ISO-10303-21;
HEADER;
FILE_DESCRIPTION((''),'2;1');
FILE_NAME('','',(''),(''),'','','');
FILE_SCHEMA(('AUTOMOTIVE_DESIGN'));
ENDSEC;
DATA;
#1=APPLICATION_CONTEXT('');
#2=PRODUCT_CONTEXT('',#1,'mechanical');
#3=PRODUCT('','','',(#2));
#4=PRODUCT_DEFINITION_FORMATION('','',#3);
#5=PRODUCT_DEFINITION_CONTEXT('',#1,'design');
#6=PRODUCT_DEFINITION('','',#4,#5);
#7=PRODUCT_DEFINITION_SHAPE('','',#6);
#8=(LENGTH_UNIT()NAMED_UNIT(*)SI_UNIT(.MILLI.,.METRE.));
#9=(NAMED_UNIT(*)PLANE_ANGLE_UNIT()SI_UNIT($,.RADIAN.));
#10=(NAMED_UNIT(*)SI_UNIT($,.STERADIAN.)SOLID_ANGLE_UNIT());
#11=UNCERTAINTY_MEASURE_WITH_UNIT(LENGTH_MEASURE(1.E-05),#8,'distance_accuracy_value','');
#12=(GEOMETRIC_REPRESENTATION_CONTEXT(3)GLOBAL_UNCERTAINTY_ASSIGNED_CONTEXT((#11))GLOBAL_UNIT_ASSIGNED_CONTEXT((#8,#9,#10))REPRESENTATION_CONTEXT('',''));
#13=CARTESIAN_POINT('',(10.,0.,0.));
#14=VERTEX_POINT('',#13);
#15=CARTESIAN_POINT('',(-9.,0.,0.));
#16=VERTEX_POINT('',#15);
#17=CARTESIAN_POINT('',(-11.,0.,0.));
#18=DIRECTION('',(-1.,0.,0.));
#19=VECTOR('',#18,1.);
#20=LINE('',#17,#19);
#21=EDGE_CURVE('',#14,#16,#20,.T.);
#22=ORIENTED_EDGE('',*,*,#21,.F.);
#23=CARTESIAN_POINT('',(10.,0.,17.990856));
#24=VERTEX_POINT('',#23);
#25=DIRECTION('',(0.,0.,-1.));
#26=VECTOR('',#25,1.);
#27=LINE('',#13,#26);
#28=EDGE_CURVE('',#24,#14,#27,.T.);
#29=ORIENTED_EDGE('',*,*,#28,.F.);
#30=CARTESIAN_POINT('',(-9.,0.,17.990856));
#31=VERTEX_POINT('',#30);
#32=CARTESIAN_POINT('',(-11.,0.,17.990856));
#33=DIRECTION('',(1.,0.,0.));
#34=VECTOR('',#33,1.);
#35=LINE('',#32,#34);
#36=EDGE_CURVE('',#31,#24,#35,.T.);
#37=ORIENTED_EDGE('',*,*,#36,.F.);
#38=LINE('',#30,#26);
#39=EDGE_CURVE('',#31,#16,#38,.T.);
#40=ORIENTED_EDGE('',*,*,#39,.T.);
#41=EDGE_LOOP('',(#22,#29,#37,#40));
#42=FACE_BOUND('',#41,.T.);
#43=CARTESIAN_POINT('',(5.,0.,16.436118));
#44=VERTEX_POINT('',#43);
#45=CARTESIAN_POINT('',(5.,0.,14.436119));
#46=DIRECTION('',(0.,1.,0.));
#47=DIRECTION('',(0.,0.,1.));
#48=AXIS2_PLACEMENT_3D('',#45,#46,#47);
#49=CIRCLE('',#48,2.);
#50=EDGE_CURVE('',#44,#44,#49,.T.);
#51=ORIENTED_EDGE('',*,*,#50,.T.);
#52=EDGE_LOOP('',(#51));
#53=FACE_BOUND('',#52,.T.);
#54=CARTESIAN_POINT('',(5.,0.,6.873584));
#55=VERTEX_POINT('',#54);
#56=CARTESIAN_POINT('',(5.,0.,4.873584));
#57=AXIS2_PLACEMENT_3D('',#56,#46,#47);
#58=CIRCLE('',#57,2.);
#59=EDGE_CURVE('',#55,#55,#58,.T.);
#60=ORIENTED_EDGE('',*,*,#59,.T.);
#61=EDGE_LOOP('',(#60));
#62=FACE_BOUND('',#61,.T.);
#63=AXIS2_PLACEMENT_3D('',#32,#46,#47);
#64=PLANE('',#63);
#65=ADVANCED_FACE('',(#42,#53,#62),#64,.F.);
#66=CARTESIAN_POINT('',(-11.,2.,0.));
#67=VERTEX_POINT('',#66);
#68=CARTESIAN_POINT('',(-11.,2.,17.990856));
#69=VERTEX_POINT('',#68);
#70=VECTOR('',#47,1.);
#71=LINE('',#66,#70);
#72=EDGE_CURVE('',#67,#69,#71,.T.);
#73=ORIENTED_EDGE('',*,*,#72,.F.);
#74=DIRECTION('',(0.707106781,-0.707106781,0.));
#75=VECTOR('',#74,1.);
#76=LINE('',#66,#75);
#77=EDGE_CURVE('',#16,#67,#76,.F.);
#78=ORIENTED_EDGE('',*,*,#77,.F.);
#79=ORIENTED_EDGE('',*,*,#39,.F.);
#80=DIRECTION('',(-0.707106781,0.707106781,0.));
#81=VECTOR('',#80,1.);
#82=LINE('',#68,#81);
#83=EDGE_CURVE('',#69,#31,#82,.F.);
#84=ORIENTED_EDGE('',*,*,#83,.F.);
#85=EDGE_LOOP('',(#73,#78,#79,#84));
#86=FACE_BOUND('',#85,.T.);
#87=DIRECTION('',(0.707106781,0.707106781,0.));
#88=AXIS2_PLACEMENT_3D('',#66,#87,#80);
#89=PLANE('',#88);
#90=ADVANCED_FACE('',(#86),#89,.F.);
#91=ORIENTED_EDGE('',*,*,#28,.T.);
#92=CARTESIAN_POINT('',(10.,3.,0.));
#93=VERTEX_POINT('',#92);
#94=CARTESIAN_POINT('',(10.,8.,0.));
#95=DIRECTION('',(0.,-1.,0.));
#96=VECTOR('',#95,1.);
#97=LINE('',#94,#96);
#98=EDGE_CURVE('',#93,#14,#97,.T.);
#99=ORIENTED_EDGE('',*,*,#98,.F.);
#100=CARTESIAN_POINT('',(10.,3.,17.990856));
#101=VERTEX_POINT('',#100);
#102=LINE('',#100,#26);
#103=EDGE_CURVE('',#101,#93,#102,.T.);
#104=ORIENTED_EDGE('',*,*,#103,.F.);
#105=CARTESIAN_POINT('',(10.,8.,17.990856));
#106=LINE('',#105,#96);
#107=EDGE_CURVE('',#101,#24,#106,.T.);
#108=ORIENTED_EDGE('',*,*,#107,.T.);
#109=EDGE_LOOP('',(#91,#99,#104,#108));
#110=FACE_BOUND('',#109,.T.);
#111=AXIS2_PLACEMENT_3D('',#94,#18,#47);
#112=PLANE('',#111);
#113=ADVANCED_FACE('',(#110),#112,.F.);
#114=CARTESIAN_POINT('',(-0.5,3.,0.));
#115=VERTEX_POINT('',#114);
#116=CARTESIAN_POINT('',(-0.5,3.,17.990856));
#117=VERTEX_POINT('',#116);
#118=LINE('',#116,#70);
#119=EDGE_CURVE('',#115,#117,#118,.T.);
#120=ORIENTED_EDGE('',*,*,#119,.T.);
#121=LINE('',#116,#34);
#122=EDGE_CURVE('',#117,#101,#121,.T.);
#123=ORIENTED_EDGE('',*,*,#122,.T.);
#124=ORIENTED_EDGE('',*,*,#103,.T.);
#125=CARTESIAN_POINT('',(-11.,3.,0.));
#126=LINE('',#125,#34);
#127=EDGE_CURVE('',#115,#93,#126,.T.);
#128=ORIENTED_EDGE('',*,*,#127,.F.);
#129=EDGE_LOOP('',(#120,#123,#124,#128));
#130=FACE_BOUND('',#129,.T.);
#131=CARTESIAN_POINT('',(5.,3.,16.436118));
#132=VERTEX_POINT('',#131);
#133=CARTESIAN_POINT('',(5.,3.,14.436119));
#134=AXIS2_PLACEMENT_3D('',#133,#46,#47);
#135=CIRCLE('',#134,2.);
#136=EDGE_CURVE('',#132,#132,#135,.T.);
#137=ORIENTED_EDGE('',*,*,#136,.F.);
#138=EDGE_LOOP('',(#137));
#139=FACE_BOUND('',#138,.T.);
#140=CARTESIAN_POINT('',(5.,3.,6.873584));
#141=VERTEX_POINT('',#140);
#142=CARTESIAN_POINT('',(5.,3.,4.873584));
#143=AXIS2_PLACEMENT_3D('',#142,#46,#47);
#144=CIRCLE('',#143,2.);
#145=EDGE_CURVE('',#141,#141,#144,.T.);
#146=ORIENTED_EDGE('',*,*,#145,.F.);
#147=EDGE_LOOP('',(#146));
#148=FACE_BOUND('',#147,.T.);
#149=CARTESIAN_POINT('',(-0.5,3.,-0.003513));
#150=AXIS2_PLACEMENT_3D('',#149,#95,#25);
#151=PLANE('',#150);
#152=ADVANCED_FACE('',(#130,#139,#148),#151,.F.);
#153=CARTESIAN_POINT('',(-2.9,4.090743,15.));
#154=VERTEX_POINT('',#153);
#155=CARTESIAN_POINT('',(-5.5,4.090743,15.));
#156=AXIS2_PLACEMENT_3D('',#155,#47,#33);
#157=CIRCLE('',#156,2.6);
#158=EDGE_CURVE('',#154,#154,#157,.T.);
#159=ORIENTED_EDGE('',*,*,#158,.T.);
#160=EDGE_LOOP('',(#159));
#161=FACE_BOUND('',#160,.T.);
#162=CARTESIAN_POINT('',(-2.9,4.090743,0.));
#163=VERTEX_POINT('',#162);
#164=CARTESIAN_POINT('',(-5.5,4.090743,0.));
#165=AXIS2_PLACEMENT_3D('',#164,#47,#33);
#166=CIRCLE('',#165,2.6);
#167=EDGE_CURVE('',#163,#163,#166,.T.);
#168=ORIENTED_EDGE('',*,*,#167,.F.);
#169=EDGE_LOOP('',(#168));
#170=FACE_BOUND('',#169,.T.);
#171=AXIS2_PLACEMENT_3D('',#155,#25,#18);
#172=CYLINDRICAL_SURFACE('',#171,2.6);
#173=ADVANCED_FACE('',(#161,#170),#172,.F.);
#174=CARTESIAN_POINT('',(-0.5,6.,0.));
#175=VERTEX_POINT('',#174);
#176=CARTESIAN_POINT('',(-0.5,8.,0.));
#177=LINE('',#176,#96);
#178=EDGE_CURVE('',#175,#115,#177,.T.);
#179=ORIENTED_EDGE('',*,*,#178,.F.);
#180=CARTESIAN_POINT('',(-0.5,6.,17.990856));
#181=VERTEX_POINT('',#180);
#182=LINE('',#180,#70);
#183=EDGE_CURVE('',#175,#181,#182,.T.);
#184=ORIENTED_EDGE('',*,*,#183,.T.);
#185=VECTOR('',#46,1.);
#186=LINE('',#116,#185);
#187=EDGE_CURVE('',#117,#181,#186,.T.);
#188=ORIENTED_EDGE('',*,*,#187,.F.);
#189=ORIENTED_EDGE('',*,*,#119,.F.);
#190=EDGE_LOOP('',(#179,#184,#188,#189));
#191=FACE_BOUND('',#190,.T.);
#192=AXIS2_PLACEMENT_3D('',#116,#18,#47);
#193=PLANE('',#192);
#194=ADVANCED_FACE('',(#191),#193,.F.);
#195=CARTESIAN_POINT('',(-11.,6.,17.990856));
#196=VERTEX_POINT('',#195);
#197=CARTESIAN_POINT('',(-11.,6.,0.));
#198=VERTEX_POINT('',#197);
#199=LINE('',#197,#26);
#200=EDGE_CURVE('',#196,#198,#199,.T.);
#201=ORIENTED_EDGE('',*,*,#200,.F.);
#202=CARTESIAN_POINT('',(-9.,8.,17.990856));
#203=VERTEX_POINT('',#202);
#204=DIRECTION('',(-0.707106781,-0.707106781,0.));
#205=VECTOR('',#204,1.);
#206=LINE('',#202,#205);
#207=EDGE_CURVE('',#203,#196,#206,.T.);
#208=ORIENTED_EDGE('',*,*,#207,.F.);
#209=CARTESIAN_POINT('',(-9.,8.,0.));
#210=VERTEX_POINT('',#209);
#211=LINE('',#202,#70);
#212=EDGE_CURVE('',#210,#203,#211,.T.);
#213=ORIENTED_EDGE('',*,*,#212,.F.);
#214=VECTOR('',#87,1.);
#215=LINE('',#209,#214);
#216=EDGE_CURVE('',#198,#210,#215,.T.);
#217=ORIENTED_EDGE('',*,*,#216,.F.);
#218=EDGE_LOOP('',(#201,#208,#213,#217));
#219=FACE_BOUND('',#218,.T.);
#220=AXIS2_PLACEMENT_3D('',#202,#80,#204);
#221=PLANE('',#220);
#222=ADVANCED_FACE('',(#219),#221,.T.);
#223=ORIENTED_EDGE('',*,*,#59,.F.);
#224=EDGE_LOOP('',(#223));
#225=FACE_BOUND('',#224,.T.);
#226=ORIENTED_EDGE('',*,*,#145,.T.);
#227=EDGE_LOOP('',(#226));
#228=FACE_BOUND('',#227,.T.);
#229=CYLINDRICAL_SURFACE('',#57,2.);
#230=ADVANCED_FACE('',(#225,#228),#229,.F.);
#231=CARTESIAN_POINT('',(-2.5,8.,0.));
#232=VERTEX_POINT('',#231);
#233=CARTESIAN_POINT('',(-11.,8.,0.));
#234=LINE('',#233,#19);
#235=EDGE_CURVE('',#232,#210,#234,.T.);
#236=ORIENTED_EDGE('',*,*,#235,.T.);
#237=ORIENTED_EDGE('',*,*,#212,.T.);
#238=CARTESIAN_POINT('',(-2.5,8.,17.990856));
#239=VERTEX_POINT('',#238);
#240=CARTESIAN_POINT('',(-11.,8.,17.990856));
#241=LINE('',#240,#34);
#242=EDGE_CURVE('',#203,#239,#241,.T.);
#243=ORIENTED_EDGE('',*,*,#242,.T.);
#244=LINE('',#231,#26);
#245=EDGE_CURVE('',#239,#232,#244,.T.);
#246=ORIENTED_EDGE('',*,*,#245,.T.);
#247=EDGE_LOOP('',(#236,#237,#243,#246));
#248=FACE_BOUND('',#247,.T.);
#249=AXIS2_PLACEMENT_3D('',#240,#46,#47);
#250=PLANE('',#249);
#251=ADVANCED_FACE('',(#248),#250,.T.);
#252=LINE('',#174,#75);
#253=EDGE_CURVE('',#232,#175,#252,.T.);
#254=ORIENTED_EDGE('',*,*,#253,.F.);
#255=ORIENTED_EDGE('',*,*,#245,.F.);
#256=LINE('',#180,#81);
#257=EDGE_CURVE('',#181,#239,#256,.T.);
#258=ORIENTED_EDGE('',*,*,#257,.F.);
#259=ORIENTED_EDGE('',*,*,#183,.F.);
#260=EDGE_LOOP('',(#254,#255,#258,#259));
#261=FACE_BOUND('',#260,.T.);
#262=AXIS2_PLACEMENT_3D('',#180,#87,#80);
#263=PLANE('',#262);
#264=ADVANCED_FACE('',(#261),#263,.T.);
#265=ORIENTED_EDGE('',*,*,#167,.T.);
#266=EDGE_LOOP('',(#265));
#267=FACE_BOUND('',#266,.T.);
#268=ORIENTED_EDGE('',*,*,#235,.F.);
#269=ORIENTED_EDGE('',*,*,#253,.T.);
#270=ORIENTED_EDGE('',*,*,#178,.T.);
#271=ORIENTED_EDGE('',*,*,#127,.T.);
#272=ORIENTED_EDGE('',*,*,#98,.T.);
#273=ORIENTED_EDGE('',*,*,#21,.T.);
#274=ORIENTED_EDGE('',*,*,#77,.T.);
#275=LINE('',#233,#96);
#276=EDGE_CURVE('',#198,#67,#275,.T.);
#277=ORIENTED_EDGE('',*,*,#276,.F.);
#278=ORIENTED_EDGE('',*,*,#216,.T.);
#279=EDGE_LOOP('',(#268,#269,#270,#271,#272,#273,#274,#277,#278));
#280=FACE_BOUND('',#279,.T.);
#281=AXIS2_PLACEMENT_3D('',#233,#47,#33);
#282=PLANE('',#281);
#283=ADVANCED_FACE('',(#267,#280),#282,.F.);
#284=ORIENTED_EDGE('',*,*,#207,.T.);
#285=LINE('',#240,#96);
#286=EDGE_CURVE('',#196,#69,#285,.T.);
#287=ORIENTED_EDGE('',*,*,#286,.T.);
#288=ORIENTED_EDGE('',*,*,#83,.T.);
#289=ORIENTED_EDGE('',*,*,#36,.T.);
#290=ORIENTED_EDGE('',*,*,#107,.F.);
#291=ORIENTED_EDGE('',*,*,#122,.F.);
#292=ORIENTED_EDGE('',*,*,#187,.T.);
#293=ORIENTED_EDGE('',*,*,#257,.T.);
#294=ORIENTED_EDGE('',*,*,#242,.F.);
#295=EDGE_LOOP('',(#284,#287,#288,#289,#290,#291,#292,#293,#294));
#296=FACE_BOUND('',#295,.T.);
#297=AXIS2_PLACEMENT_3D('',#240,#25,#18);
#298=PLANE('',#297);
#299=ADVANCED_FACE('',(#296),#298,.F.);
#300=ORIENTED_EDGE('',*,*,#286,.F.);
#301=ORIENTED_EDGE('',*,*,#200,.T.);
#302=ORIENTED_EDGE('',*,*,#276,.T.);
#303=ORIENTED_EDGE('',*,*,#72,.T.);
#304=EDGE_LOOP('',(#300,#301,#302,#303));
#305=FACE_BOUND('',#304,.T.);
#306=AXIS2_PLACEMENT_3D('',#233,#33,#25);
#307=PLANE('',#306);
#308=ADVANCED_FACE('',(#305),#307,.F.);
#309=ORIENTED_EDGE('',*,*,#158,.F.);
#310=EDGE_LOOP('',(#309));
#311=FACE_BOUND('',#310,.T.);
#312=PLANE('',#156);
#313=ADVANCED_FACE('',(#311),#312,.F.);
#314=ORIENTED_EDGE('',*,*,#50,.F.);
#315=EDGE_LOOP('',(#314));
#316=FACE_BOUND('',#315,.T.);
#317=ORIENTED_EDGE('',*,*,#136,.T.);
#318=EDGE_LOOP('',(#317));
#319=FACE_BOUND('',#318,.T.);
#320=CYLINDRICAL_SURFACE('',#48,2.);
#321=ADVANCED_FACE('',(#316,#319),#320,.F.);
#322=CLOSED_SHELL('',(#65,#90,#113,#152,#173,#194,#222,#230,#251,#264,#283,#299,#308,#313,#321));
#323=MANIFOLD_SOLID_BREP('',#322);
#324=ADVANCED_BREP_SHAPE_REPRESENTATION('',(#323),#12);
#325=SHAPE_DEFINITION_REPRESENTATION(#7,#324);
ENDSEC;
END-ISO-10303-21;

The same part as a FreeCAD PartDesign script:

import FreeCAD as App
import Part
import Sketcher


def edges_at(feature, points):
    """Names of the edges that pass closest to the given points."""
    edges = feature.Shape.Edges
    near = lambda p: min(range(len(edges)), key=lambda i: edges[i].distToShape(Part.Vertex(*p))[0])
    return sorted({f"Edge{near(p) + 1}" for p in points})

doc = App.newDocument("Part")
body = doc.addObject("PartDesign::Body", "Body")

# Sketch on XZ plane
sketch1 = body.newObject("Sketcher::SketchObject", "Sketch")
sketch1.AttachmentSupport = (doc.getObject("XZ_Plane"), [""])
sketch1.MapMode = "FlatFace"
sketch1.addGeometry(Part.LineSegment(App.Vector(-11, 0, 0), App.Vector(-11, 17.990856, 0)), False)
sketch1.addGeometry(Part.LineSegment(App.Vector(-11, 17.990856, 0), App.Vector(10, 17.990856, 0)), False)
sketch1.addGeometry(Part.LineSegment(App.Vector(10, 17.990856, 0), App.Vector(10, 0, 0)), False)
sketch1.addGeometry(Part.LineSegment(App.Vector(10, 0, 0), App.Vector(-11, 0, 0)), False)
sketch1.addConstraint(Sketcher.Constraint("Coincident", 0, 2, 1, 1))
sketch1.addConstraint(Sketcher.Constraint("Coincident", 1, 2, 2, 1))
sketch1.addConstraint(Sketcher.Constraint("Coincident", 2, 2, 3, 1))
sketch1.addConstraint(Sketcher.Constraint("Coincident", 3, 2, 0, 1))
sketch1.addConstraint(Sketcher.Constraint("Vertical", 0))
sketch1.addConstraint(Sketcher.Constraint("Horizontal", 1))
sketch1.addConstraint(Sketcher.Constraint("Vertical", 2))
sketch1.addConstraint(Sketcher.Constraint("Horizontal", 3))
sketch1.addConstraint(Sketcher.Constraint("PointOnObject", 2, 2, -1))
sketch1.addConstraint(Sketcher.Constraint("DistanceX", 1, 1, 1, 2, 21.0))
sketch1.addConstraint(Sketcher.Constraint("DistanceX", 0, 2, -1, 1, 11.0))
sketch1.addConstraint(Sketcher.Constraint("DistanceY", 0, 1, 0, 2, 17.990856))
pad1 = body.newObject("PartDesign::Pad", "Pad")
pad1.Profile = sketch1
pad1.Length = 8
pad1.Reversed = True

# Sketch on XZ plane
sketch2 = body.newObject("Sketcher::SketchObject", "Sketch001")
sketch2.AttachmentSupport = (doc.getObject("XZ_Plane"), [""])
sketch2.MapMode = "FlatFace"
sketch2.AttachmentOffset = App.Placement(App.Vector(0, 0, -8), App.Rotation())
sketch2.addGeometry(Part.LineSegment(App.Vector(-0.5, -0.003513, 0), App.Vector(-0.5, 17.990856, 0)), False)
sketch2.addGeometry(Part.LineSegment(App.Vector(-0.5, 17.990856, 0), App.Vector(10, 17.990856, 0)), False)
sketch2.addGeometry(Part.LineSegment(App.Vector(10, 17.990856, 0), App.Vector(10, -0.003513, 0)), False)
sketch2.addGeometry(Part.LineSegment(App.Vector(10, -0.003513, 0), App.Vector(-0.5, -0.003513, 0)), False)
sketch2.addConstraint(Sketcher.Constraint("Coincident", 0, 2, 1, 1))
sketch2.addConstraint(Sketcher.Constraint("Coincident", 1, 2, 2, 1))
sketch2.addConstraint(Sketcher.Constraint("Coincident", 2, 2, 3, 1))
sketch2.addConstraint(Sketcher.Constraint("Coincident", 3, 2, 0, 1))
sketch2.addConstraint(Sketcher.Constraint("Vertical", 0))
sketch2.addConstraint(Sketcher.Constraint("Horizontal", 1))
sketch2.addConstraint(Sketcher.Constraint("Vertical", 2))
sketch2.addConstraint(Sketcher.Constraint("Horizontal", 3))
sketch2.addConstraint(Sketcher.Constraint("DistanceX", 1, 1, 1, 2, 10.5))
sketch2.addConstraint(Sketcher.Constraint("DistanceX", -1, 1, 1, 2, 10.0))
sketch2.addConstraint(Sketcher.Constraint("DistanceY", 0, 1, 0, 2, 17.994369))
sketch2.addConstraint(Sketcher.Constraint("DistanceY", -1, 1, 0, 2, 17.990856))
pocket1 = body.newObject("PartDesign::Pocket", "Pocket")
pocket1.Profile = sketch2
pocket1.Length = 5
pocket1.Reversed = True

# Sketch on XZ plane
sketch3 = body.newObject("Sketcher::SketchObject", "Sketch002")
sketch3.AttachmentSupport = (doc.getObject("XZ_Plane"), [""])
sketch3.MapMode = "FlatFace"
sketch3.AttachmentOffset = App.Placement(App.Vector(0, 0, -3), App.Rotation())
sketch3.addGeometry(Part.Circle(App.Vector(5, 14.436119, 0), App.Vector(0, 0, 1), 2), False)
sketch3.addGeometry(Part.Circle(App.Vector(5, 4.873584, 0), App.Vector(0, 0, 1), 2), False)
sketch3.addConstraint(Sketcher.Constraint("Equal", 0, 1))
sketch3.addConstraint(Sketcher.Constraint("Vertical", 0, 3, 1, 3))
sketch3.addConstraint(Sketcher.Constraint("Diameter", 0, 4.0))
sketch3.addConstraint(Sketcher.Constraint("DistanceX", -1, 1, 0, 3, 5.0))
sketch3.addConstraint(Sketcher.Constraint("DistanceY", -1, 1, 0, 3, 14.436119))
sketch3.addConstraint(Sketcher.Constraint("DistanceY", -1, 1, 1, 3, 4.873584))
pocket2 = body.newObject("PartDesign::Pocket", "Pocket001")
pocket2.Profile = sketch3
pocket2.Type = "ThroughAll"
pocket2.Reversed = True

# Sketch on XY plane
sketch4 = body.newObject("Sketcher::SketchObject", "Sketch003")
sketch4.AttachmentSupport = (doc.getObject("XY_Plane"), [""])
sketch4.MapMode = "FlatFace"
sketch4.addGeometry(Part.Circle(App.Vector(-5.5, 4.090743, 0), App.Vector(0, 0, 1), 2.6), False)
sketch4.addConstraint(Sketcher.Constraint("Diameter", 0, 5.2))
sketch4.addConstraint(Sketcher.Constraint("DistanceX", 0, 3, -1, 1, 5.5))
sketch4.addConstraint(Sketcher.Constraint("DistanceY", -1, 1, 0, 3, 4.090743))
pocket3 = body.newObject("PartDesign::Pocket", "Pocket002")
pocket3.Profile = sketch4
pocket3.Length = 15
pocket3.Reversed = True
doc.recompute()

chamfer = body.newObject("PartDesign::Chamfer", "Chamfer")
chamfer.Base = (pocket3, edges_at(pocket3, [(-0.5, 8, 8.995), (-11, 8, 8.995), (-11, 0, 8.995)]))
chamfer.Size = 2

doc.recompute()
